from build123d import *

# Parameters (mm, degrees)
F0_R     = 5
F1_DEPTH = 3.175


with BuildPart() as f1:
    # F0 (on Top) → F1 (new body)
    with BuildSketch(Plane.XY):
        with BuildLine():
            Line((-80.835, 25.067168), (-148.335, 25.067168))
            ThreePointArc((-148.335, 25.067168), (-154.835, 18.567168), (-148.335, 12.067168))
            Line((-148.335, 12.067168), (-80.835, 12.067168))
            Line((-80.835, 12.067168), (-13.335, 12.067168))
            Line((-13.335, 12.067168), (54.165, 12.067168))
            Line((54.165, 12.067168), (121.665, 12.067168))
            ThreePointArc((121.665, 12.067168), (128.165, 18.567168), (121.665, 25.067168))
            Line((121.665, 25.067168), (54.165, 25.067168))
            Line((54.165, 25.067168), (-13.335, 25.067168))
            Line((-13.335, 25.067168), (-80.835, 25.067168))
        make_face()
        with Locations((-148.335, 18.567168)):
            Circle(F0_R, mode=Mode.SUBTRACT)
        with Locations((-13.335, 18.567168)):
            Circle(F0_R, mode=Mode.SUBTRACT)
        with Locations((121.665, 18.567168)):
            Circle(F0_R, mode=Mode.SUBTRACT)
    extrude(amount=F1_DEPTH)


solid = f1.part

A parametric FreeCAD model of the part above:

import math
import FreeCAD as App
import Part
import Sketcher
Q = App.Units.Quantity

doc = App.newDocument("Part")
body = doc.addObject("PartDesign::Body", "Body")

# Sketch on XY plane
sketch1 = body.newObject("Sketcher::SketchObject", "Sketch")
sketch1.AttachmentSupport = (doc.getObject("XY_Plane"), [""])
sketch1.MapMode = "FlatFace"
sketch1.addGeometry([
    Part.ArcOfCircle(Part.Circle(App.Vector(-148, 19, 0), App.Vector(0, 0, 1), 6), math.radians(90), math.radians(270)),  # 0
    Part.LineSegment(App.Vector(-148, 12, 0), App.Vector(122, 12, 0)),  # 1
    Part.ArcOfCircle(Part.Circle(App.Vector(122, 19, 0), App.Vector(0, 0, 1), 6), math.radians(-90), math.radians(90)),  # 2
    Part.LineSegment(App.Vector(122, 25, 0), App.Vector(-148, 25, 0)),  # 3
    Part.Circle(App.Vector(-148, 19, 0), App.Vector(0, 0, 1), 5),  # 4
    Part.Circle(App.Vector(-13, 19, 0), App.Vector(0, 0, 1), 5),  # 5
    Part.Circle(App.Vector(122, 19, 0), App.Vector(0, 0, 1), 5),  # 6
], False)
sketch1.addConstraint([
    Sketcher.Constraint("Tangent", 0, 2, 1, 1),
    Sketcher.Constraint("Tangent", 1, 2, 2, 1),
    Sketcher.Constraint("Tangent", 2, 2, 3, 1),
    Sketcher.Constraint("Tangent", 3, 2, 0, 1),
    Sketcher.Constraint("Horizontal", 1),
    Sketcher.Constraint("Horizontal", 3),
    Sketcher.Constraint("Coincident", 4, 3, 0, 3),
    Sketcher.Constraint("Coincident", 6, 3, 2, 3),
    Sketcher.Constraint("Equal", 4, 5),
    Sketcher.Constraint("Equal", 5, 6),
    Sketcher.Constraint("Horizontal", 4, 3, 5, 3),
    Sketcher.Constraint("Diameter", 4, Q("10 mm")),
    Sketcher.Constraint("Radius", 0, Q("6.5 mm")),
    Sketcher.Constraint("DistanceX", 1, 1, 1, 2, Q("270 mm")),
    Sketcher.Constraint("DistanceX", 0, 3, 5, 3, Q("135 mm")),
    Sketcher.Constraint("DistanceX", 0, 3, -1, 1, Q("148.335 mm")),
    Sketcher.Constraint("DistanceY", -1, 1, 0, 3, Q("18.567168 mm")),
])
pad1 = body.newObject("PartDesign::Pad", "Pad")
pad1.Profile = sketch1
pad1.Length = 3.175

doc.recompute()
